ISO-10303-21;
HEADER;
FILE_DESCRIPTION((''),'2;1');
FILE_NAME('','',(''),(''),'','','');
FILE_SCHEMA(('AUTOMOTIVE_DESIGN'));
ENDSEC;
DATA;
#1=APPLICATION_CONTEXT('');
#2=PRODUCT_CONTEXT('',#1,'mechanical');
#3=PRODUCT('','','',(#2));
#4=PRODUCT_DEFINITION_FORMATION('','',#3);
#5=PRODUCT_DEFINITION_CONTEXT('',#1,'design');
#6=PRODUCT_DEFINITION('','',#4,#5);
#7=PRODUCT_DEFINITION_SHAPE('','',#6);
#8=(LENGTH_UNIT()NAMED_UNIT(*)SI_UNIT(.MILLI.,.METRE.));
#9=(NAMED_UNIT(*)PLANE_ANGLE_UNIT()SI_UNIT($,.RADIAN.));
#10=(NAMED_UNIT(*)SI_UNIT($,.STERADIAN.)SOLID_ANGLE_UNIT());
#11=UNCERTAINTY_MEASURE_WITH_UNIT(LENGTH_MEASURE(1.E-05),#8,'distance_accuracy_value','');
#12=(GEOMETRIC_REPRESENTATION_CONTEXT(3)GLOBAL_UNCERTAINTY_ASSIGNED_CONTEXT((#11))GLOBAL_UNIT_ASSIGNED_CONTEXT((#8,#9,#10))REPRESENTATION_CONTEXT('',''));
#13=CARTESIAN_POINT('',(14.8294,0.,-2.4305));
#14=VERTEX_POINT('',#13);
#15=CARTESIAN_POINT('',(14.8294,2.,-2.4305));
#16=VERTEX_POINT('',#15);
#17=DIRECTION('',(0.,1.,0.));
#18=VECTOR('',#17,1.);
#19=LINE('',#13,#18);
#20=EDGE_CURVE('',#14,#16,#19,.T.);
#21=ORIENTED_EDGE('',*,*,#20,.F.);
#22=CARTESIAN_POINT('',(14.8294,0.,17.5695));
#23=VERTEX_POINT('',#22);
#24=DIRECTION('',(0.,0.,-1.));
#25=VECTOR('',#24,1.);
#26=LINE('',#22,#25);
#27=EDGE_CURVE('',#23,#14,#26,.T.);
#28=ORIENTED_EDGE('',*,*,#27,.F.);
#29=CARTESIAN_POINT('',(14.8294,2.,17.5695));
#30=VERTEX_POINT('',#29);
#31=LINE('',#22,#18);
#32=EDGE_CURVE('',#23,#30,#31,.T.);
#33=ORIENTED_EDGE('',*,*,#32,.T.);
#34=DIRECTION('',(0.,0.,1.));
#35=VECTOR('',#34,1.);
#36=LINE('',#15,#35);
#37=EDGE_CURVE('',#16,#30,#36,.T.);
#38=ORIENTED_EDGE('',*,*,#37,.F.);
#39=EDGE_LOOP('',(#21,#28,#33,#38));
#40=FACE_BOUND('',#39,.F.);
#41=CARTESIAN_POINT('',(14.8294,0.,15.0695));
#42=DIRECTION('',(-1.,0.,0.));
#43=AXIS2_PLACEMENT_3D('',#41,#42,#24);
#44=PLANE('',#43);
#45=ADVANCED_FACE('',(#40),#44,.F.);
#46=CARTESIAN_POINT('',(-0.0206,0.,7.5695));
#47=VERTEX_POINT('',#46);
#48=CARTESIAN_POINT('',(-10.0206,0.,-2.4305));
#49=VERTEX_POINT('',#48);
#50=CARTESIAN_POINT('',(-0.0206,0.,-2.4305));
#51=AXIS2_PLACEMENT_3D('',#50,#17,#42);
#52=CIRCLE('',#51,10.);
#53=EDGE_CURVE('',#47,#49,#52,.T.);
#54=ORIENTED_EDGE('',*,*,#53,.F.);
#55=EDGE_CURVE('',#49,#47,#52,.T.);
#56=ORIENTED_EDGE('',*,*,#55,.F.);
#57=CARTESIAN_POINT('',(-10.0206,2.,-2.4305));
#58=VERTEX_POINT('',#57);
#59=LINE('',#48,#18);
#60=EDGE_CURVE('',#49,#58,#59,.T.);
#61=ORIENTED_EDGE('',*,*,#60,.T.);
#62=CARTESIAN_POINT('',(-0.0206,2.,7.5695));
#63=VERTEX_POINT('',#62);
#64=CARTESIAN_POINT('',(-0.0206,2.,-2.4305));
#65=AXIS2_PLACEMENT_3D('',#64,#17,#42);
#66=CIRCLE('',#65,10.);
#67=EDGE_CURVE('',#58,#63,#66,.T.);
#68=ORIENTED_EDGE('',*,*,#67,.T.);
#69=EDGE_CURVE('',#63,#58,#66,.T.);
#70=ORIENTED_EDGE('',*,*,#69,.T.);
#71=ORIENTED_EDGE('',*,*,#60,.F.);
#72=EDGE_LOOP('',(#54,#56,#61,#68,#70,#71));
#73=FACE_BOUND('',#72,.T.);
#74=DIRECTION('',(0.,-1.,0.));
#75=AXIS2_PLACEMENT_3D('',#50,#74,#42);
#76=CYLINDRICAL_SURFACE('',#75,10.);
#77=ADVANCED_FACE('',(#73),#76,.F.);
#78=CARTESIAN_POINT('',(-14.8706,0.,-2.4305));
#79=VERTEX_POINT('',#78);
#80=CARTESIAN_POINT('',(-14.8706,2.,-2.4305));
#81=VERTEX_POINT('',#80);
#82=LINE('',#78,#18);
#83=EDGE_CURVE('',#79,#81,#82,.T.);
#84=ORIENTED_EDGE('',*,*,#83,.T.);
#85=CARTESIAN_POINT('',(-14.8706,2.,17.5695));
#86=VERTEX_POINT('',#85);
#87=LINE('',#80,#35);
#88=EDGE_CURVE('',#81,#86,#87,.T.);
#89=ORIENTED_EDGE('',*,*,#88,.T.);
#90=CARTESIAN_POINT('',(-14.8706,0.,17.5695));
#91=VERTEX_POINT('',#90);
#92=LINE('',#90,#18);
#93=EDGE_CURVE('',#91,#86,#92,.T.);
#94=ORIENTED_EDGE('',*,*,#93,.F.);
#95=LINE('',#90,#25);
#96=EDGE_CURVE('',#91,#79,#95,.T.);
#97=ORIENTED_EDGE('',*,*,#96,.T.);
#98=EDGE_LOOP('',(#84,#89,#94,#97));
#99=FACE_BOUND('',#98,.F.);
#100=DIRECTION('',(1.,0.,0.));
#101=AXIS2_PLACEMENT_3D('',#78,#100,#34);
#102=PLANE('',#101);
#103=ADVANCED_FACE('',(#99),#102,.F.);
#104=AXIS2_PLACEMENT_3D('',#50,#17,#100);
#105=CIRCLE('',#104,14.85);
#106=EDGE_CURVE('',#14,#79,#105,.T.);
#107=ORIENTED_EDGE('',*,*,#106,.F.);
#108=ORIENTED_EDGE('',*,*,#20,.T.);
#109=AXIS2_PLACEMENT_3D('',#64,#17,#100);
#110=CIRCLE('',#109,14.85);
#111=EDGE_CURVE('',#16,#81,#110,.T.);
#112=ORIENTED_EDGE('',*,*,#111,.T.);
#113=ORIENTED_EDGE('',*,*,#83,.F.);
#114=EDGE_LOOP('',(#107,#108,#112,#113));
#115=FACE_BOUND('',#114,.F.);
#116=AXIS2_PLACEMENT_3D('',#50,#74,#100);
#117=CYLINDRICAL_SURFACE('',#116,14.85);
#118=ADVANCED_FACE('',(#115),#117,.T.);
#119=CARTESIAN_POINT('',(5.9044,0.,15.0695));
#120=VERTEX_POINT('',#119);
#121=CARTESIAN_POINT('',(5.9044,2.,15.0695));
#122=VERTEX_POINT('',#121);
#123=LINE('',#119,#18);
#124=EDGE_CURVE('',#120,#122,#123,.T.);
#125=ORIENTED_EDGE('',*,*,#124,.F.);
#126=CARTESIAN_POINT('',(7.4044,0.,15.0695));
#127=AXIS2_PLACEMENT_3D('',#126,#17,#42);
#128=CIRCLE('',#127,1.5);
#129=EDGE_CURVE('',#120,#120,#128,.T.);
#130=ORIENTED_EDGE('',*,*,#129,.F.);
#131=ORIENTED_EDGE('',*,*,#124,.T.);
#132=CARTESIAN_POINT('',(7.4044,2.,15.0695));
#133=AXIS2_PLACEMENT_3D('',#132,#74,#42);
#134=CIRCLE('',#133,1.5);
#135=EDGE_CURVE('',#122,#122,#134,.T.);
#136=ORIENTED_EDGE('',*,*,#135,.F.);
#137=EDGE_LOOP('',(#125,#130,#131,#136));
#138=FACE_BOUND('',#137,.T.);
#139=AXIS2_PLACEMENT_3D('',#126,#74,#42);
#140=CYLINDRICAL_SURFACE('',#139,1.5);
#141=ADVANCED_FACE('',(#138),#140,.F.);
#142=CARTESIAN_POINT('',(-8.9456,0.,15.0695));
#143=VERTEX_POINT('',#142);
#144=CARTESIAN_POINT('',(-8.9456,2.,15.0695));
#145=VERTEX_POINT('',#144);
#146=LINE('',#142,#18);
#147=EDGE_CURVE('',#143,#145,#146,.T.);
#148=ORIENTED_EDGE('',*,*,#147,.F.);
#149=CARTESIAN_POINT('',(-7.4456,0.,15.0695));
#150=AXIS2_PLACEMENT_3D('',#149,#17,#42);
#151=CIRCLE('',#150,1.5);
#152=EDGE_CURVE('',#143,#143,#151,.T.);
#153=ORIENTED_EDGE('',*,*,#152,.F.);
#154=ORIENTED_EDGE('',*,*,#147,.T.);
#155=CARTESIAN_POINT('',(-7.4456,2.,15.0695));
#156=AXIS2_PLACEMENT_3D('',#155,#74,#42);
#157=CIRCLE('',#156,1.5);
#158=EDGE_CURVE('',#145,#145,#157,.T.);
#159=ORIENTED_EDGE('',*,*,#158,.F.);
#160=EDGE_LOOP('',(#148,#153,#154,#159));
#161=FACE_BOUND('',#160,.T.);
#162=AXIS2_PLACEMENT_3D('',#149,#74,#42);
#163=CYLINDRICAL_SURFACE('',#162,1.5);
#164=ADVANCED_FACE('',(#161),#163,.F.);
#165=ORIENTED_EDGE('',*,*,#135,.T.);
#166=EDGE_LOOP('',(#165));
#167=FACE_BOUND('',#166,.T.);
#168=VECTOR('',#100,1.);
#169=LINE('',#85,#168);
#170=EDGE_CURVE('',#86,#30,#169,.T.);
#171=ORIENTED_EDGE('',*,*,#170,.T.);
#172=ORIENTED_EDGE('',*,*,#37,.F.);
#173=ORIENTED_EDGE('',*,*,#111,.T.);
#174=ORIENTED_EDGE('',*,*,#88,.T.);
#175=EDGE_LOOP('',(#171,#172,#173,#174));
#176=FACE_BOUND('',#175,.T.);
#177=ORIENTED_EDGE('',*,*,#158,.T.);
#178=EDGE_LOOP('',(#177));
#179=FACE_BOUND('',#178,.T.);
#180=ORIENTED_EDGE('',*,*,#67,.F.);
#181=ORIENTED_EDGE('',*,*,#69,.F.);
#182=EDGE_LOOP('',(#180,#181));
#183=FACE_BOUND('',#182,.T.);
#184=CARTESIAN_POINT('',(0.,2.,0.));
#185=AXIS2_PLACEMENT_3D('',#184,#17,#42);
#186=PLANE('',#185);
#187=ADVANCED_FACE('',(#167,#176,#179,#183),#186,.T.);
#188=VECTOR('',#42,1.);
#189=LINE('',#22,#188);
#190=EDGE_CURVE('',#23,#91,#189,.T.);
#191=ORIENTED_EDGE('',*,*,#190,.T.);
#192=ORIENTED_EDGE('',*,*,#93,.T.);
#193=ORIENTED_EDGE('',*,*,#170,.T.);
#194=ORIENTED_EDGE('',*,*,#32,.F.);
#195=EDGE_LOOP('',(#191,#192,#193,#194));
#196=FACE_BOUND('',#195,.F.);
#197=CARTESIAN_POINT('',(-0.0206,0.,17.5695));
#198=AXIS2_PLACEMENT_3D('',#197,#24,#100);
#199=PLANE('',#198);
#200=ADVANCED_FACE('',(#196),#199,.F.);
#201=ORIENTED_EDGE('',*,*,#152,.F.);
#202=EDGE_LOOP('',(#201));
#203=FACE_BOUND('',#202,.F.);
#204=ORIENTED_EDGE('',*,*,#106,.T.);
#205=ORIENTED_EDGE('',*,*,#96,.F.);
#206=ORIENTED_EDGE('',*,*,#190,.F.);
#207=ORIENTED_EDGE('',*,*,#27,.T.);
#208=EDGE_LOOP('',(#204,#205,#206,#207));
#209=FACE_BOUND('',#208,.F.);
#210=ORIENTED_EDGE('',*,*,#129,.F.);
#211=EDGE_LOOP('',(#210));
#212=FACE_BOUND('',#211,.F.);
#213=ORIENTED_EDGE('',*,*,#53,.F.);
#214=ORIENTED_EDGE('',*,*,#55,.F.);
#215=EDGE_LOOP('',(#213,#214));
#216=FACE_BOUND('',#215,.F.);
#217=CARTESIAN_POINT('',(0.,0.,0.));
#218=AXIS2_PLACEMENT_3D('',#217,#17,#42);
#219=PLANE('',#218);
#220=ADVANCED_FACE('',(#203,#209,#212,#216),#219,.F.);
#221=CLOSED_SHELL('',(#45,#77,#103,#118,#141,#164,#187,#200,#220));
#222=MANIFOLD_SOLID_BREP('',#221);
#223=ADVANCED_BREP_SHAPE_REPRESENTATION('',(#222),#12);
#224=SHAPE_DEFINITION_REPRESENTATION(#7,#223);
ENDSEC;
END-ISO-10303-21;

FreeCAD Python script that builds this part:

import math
import FreeCAD as App
import Part
import Sketcher

V = App.Vector

doc = App.newDocument("Part")
body = doc.addObject("PartDesign::Body", "Body")

sketch1 = body.newObject("Sketcher::SketchObject", "Sketch")
sketch1.AttachmentSupport = (doc.getObject("XZ_Plane"), [""])
sketch1.MapMode = "FlatFace"
sketch1.addGeometry(Part.ArcOfCircle(Part.Circle(V(0, -2.4, 0), V(0, 0, 1), 14.8), math.radians(180), math.radians(360)), False)
sketch1.addGeometry(Part.LineSegment(V(-14.9, -2.4, 0), V(-14.9, 17.6, 0)), False)
sketch1.addGeometry(Part.LineSegment(V(-14.9, 17.6, 0), V(14.8, 17.6, 0)), False)
sketch1.addGeometry(Part.LineSegment(V(14.8, 17.6, 0), V(14.8, -2.4, 0)), False)
sketch1.addGeometry(Part.Circle(V(7.4, 15.1, 0), V(0, 0, 1), 1.5), False)
sketch1.addGeometry(Part.Circle(V(-7.4, 15.1, 0), V(0, 0, 1), 1.5), False)
sketch1.addGeometry(Part.Circle(V(0, -2.4, 0), V(0, 0, 1), 10), False)
sketch1.addConstraint(Sketcher.Constraint("Tangent", 0, 1, 1, 1))
sketch1.addConstraint(Sketcher.Constraint("Coincident", 1, 2, 2, 1))
sketch1.addConstraint(Sketcher.Constraint("Coincident", 2, 2, 3, 1))
sketch1.addConstraint(Sketcher.Constraint("Tangent", 3, 2, 0, 2))
sketch1.addConstraint(Sketcher.Constraint("Vertical", 1))
sketch1.addConstraint(Sketcher.Constraint("Horizontal", 2))
sketch1.addConstraint(Sketcher.Constraint("Vertical", 3))
sketch1.addConstraint(Sketcher.Constraint("Coincident", 6, 3, 0, 3))
sketch1.addConstraint(Sketcher.Constraint("Equal", 4, 5))
sketch1.addConstraint(Sketcher.Constraint("Horizontal", 4, 3, 5, 3))
sketch1.addConstraint(Sketcher.Constraint("Diameter", 4, 3.0))
sketch1.addConstraint(Sketcher.Constraint("Diameter", 6, 20.0))
sketch1.addConstraint(Sketcher.Constraint("DistanceY", 1, 1, 1, 2, 20.0))
sketch1.addConstraint(Sketcher.Constraint("Radius", 0, 14.85))
sketch1.addConstraint(Sketcher.Constraint("DistanceY", 0, 3, 4, 3, 17.5))
sketch1.addConstraint(Sketcher.Constraint("DistanceX", 5, 3, 4, 3, 14.85))
sketch1.addConstraint(Sketcher.Constraint("DistanceX", 0, 3, 4, 3, 7.425))
sketch1.addConstraint(Sketcher.Constraint("DistanceX", 0, 3, -1, 1, 0.0206))
sketch1.addConstraint(Sketcher.Constraint("DistanceY", 0, 3, -1, 1, 2.4305))
pad1 = body.newObject("PartDesign::Pad", "Pad")
pad1.Profile = sketch1
pad1.Length = 2
pad1.Reversed = True

doc.recompute()
